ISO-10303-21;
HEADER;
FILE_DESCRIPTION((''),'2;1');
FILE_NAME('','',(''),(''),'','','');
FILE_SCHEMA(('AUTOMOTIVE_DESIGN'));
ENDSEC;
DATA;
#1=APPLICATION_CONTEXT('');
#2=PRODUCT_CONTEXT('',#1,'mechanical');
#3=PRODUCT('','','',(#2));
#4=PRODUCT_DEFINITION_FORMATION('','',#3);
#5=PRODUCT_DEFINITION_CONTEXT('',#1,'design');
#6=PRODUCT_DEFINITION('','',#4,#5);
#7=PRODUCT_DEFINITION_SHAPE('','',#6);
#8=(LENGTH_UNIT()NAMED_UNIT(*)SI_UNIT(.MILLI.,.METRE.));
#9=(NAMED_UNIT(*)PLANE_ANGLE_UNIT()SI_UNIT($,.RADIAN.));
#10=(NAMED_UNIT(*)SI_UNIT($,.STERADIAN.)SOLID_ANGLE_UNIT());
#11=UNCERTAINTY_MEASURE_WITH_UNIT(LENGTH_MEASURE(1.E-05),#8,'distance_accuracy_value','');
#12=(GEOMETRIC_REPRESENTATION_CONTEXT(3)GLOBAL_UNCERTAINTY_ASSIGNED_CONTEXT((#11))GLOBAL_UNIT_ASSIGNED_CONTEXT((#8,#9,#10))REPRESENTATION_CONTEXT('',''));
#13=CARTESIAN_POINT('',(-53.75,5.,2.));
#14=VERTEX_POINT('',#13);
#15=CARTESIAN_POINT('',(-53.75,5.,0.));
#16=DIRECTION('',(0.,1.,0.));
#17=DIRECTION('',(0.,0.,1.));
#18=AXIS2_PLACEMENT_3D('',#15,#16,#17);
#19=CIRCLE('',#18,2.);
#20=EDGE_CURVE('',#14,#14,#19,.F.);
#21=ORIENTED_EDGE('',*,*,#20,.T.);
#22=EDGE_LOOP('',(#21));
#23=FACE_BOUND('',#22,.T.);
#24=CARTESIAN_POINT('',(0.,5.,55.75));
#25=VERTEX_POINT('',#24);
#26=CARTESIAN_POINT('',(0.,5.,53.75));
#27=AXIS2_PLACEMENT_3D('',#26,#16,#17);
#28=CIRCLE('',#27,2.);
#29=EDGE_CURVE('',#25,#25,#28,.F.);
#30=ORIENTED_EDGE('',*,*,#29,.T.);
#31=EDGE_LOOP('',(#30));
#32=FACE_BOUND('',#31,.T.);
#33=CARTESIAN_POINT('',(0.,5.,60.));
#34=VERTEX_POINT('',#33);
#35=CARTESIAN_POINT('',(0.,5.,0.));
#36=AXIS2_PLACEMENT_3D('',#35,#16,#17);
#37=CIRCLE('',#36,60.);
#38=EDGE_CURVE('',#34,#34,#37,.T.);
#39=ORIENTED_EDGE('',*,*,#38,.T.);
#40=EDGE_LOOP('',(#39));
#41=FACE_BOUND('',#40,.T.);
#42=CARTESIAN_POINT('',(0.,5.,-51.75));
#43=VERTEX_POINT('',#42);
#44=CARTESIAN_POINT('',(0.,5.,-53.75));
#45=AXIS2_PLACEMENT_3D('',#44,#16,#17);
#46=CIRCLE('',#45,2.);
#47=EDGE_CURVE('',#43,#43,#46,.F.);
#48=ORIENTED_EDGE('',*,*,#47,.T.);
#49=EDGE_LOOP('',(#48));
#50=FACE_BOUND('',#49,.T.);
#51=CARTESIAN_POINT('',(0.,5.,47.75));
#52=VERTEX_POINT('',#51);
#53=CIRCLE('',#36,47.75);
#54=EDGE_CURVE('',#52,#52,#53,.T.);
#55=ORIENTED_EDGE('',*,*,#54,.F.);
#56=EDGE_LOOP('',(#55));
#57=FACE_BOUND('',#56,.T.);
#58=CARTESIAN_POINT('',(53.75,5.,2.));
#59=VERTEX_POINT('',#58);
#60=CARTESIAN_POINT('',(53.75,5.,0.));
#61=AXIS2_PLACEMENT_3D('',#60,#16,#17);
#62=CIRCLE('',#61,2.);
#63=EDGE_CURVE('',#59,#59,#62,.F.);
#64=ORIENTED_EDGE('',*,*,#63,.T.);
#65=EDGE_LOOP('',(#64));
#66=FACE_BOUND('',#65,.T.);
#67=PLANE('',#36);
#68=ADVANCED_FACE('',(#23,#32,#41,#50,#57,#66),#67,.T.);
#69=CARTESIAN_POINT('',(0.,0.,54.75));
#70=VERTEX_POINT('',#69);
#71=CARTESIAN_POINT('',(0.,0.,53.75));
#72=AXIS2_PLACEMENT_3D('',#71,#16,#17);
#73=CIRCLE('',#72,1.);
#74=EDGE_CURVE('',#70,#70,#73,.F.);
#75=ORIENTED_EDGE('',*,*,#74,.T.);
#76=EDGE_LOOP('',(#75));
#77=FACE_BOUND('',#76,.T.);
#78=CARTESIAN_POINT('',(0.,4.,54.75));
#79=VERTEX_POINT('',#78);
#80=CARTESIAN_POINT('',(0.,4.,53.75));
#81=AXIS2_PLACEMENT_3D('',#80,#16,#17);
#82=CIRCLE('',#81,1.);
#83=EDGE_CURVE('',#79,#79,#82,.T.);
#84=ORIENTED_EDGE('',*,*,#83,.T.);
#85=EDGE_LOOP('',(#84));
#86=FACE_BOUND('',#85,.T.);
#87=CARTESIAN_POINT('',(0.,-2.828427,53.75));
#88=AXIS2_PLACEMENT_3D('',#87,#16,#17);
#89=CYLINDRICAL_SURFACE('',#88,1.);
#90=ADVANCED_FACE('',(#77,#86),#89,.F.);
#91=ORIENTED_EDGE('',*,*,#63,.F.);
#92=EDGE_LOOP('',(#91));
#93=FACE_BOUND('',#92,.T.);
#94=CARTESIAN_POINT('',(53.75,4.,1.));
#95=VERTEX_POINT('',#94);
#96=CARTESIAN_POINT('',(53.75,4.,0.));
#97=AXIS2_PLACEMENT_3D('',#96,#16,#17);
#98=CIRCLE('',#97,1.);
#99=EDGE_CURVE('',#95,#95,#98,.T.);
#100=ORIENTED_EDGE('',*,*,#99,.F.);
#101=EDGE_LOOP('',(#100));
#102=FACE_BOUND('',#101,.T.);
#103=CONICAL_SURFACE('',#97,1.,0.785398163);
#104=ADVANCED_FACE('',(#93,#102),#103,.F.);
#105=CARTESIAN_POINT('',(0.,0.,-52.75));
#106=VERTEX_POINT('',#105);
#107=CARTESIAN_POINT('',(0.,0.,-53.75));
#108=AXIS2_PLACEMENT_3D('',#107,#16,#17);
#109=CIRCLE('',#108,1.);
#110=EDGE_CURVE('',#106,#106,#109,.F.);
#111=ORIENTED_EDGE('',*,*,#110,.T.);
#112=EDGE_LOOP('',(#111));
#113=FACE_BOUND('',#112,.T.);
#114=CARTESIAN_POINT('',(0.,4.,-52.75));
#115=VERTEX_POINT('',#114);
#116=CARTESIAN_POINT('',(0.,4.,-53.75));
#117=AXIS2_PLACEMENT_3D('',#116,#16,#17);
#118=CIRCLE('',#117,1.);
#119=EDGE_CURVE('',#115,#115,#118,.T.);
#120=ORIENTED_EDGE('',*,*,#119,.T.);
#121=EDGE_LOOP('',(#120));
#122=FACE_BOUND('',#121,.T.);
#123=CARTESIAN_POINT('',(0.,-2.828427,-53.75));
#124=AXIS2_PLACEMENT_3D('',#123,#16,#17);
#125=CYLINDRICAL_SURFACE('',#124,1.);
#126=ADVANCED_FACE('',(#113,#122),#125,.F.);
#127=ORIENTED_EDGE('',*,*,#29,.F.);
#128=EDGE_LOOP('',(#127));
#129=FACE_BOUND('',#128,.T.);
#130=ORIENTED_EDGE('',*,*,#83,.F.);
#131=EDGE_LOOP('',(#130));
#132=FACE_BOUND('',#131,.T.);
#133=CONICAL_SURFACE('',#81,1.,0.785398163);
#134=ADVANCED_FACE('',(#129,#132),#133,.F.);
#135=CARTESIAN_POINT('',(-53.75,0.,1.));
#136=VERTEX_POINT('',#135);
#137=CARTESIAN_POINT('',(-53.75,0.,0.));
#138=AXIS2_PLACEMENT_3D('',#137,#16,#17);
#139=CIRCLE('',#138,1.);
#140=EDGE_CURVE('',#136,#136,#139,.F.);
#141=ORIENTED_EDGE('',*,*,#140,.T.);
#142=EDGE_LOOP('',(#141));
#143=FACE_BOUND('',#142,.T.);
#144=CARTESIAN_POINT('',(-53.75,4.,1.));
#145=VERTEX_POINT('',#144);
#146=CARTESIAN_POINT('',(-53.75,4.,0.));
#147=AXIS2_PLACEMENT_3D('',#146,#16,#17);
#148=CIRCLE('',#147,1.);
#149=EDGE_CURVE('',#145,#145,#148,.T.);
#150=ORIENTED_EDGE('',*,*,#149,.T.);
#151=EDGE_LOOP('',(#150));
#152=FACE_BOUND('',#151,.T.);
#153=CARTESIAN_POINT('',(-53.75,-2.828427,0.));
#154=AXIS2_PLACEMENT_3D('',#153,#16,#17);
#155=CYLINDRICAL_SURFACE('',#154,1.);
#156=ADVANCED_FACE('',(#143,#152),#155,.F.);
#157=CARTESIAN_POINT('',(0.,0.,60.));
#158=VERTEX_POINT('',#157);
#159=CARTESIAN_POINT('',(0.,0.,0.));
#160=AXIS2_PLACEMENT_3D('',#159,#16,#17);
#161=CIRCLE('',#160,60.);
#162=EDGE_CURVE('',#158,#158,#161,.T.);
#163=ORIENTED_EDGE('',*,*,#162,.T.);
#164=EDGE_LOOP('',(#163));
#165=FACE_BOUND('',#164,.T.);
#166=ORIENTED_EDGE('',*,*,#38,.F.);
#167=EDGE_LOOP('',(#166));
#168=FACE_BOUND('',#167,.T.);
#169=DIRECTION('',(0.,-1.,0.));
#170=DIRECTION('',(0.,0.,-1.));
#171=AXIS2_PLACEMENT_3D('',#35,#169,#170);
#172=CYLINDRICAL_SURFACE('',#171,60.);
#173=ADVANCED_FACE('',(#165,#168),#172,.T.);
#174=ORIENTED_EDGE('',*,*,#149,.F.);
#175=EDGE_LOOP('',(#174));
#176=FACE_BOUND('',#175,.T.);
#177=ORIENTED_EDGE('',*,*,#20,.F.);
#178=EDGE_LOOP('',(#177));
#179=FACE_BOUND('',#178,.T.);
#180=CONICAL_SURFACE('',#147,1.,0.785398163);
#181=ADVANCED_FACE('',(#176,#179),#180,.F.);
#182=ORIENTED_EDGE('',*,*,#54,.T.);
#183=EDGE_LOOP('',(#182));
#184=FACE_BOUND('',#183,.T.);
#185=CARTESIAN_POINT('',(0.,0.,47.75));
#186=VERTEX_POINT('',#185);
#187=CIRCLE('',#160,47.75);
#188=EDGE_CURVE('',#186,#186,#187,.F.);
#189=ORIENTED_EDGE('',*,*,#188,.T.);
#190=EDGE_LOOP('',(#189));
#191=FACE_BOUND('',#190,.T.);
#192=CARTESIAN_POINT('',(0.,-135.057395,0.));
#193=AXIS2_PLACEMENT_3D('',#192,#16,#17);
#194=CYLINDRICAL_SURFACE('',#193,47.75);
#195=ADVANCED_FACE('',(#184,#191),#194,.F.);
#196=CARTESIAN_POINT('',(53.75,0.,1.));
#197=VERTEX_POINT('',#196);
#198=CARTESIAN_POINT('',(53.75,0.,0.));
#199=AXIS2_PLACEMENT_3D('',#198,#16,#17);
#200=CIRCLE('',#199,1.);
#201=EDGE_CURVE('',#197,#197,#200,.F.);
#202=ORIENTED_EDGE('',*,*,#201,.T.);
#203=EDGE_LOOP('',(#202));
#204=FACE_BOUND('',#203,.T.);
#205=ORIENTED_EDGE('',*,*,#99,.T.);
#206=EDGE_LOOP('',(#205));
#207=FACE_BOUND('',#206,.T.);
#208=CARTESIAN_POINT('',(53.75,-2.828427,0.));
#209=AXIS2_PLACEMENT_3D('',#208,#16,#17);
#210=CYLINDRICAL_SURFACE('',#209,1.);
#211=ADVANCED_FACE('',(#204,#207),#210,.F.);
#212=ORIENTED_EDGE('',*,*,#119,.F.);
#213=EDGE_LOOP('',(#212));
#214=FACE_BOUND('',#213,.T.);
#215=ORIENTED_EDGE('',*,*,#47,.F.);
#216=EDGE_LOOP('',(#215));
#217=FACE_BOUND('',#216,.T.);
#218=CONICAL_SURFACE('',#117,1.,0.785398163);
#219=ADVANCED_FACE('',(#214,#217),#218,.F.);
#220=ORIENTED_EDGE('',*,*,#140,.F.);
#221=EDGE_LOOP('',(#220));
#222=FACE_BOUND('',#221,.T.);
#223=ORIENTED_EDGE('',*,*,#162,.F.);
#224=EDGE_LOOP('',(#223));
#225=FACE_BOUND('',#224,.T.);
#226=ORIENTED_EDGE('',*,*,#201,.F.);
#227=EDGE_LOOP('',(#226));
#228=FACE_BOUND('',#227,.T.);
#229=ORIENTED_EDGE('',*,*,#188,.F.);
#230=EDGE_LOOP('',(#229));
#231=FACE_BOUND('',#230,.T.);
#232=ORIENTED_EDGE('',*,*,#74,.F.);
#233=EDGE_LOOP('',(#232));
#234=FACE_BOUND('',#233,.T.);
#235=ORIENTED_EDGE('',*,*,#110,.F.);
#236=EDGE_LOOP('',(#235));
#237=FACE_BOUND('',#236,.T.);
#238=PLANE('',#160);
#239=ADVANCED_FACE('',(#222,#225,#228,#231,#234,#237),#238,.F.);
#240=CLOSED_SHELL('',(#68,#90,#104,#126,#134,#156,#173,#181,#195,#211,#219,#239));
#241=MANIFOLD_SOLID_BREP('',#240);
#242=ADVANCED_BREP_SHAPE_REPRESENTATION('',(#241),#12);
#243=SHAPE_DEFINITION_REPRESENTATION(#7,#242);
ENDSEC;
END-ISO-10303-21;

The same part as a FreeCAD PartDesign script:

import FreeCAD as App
import Part
import Sketcher
from FreeCAD import Vector
Q = App.Units.Quantity


def edges_at(feature, points):
    """Names of the edges that pass closest to the given points."""
    edges = feature.Shape.Edges
    near = lambda p: min(range(len(edges)), key=lambda i: edges[i].distToShape(Part.Vertex(*p))[0])
    return sorted({f"Edge{near(p) + 1}" for p in points})

doc = App.newDocument("Part")
body = doc.addObject("PartDesign::Body", "Body")

sketch1 = body.newObject("Sketcher::SketchObject", "Sketch")
sketch1.AttachmentSupport = (doc.getObject("XZ_Plane"), [""])
sketch1.MapMode = "FlatFace"
sketch1.addGeometry(Part.Circle(Vector(0, 0, 0), Vector(0, 0, 1), 60), False)
sketch1.addConstraint(Sketcher.Constraint("Coincident", 0, 3, -1, 1))
sketch1.addConstraint(Sketcher.Constraint("Diameter", 0, Q("120 mm")))
pad1 = body.newObject("PartDesign::Pad", "Pad")
pad1.Profile = sketch1
pad1.Length = 5
pad1.Reversed = True

sketch2 = body.newObject("Sketcher::SketchObject", "Sketch001")
sketch2.AttachmentSupport = (doc.getObject("XZ_Plane"), [""])
sketch2.MapMode = "FlatFace"
sketch2.AttachmentOffset = App.Placement(Vector(0, 0, -5), App.Rotation())
sketch2.addGeometry(Part.Circle(Vector(0, -53.8, 0), Vector(0, 0, 1), 1), False)
sketch2.addConstraint(Sketcher.Constraint("PointOnObject", 0, 3, -2))
sketch2.addConstraint(Sketcher.Constraint("Diameter", 0, Q("2 mm")))
sketch2.addConstraint(Sketcher.Constraint("DistanceY", 0, 3, -1, 1, Q("53.75 mm")))
pocket1 = body.newObject("PartDesign::Pocket", "Pocket")
pocket1.Profile = sketch2
pocket1.Length = 5
pocket1.Reversed = True
doc.recompute()

chamfer = body.newObject("PartDesign::Chamfer", "Chamfer")
chamfer.Base = (pocket1, edges_at(pocket1, [(0, 5, -54.75)]))
chamfer.Size = 1
doc.recompute()

polarpattern = body.newObject("PartDesign::PolarPattern", "PolarPattern")
polarpattern.Originals = [pocket1]
polarpattern.Axis = (doc.getObject("Y_Axis"), [""])
polarpattern.Angle = 360
polarpattern.Occurrences = 4
body.Tip = polarpattern
doc.recompute()

chamfer2 = body.newObject("PartDesign::Chamfer", "Chamfer001")
chamfer2.Base = (polarpattern, edges_at(polarpattern, [(-54.75, 5, 0), (0, 5, 54.75), (54.75, 5, 0)]))
chamfer2.Size = 1

sketch3 = body.newObject("Sketcher::SketchObject", "Sketch002")
sketch3.AttachmentSupport = (doc.getObject("XZ_Plane"), [""])
sketch3.MapMode = "FlatFace"
sketch3.AttachmentOffset = App.Placement(Vector(0, 0, -5), App.Rotation())
sketch3.addGeometry(Part.Circle(Vector(0, 0, 0), Vector(0, 0, 1), 48), False)
sketch3.addConstraint(Sketcher.Constraint("Coincident", 0, 3, -1, 1))
sketch3.addConstraint(Sketcher.Constraint("Diameter", 0, Q("95.5 mm")))
pocket2 = body.newObject("PartDesign::Pocket", "Pocket001")
pocket2.Profile = sketch3
pocket2.Length = 5
pocket2.Reversed = True

doc.recompute()
